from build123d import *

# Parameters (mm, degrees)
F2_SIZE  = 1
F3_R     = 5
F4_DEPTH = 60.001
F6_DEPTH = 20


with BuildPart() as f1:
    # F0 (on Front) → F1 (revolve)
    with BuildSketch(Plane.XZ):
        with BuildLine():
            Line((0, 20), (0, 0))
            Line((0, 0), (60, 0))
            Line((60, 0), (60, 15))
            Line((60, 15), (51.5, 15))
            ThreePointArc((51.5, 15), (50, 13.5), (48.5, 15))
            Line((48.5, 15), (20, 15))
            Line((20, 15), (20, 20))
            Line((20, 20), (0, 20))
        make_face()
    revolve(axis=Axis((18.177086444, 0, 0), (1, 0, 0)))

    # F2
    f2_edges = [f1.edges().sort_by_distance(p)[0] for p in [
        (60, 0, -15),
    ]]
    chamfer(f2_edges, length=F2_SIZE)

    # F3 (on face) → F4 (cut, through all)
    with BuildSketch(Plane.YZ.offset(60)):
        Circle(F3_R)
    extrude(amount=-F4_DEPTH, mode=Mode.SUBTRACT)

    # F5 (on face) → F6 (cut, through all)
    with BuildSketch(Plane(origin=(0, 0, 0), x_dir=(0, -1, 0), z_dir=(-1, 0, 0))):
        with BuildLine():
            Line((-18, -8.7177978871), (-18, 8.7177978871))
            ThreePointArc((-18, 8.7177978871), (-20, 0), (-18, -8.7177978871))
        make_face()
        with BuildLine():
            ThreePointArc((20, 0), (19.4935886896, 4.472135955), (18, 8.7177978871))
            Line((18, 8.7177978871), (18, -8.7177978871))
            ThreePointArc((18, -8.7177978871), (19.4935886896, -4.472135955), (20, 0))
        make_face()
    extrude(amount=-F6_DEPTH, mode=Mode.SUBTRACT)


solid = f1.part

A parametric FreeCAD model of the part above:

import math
import FreeCAD as App
import Part
import Sketcher
from FreeCAD import Vector
Q = App.Units.Quantity


def edges_at(feature, points):
    """Names of the edges that pass closest to the given points."""
    edges = feature.Shape.Edges
    near = lambda p: min(range(len(edges)), key=lambda i: edges[i].distToShape(Part.Vertex(*p))[0])
    return sorted({f"Edge{near(p) + 1}" for p in points})

doc = App.newDocument("Part")
body = doc.addObject("PartDesign::Body", "Body")

# Sketch on XZ plane
sketch1 = doc.addObject("Sketcher::SketchObject", "Sketch")
body.addObject(sketch1)
sketch1.AttachmentSupport = (doc.XZ_Plane, [""])
sketch1.MapMode = "FlatFace"
sketch1.addGeometry([
    Part.LineSegment(Vector(0, 20, 0), Vector(0, 0, 0)),  # 0
    Part.LineSegment(Vector(0, 0, 0), Vector(60, 0, 0)),  # 1
    Part.LineSegment(Vector(60, 0, 0), Vector(60, 15, 0)),  # 2
    Part.LineSegment(Vector(60, 15, 0), Vector(51.5, 15, 0)),  # 3
    Part.ArcOfCircle(Part.Circle(Vector(50, 15, 0), Vector(0, 0, 1), 1.5), math.radians(180), math.radians(360)),  # 4
    Part.LineSegment(Vector(48.5, 15, 0), Vector(20, 15, 0)),  # 5
    Part.LineSegment(Vector(20, 15, 0), Vector(20, 20, 0)),  # 6
    Part.LineSegment(Vector(20, 20, 0), Vector(0, 20, 0)),  # 7
], False)
sketch1.addConstraint([
    Sketcher.Constraint("Coincident", 0, 2, 1, 1),
    Sketcher.Constraint("Coincident", 1, 2, 2, 1),
    Sketcher.Constraint("Coincident", 2, 2, 3, 1),
    Sketcher.Constraint("Coincident", 3, 2, 4, 2),
    Sketcher.Constraint("Coincident", 4, 1, 5, 1),
    Sketcher.Constraint("Coincident", 5, 2, 6, 1),
    Sketcher.Constraint("Coincident", 6, 2, 7, 1),
    Sketcher.Constraint("Coincident", 7, 2, 0, 1),
    Sketcher.Constraint("Vertical", 0),
    Sketcher.Constraint("Horizontal", 1),
    Sketcher.Constraint("Vertical", 2),
    Sketcher.Constraint("Horizontal", 3),
    Sketcher.Constraint("Horizontal", 5),
    Sketcher.Constraint("Vertical", 6),
    Sketcher.Constraint("Horizontal", 7),
    Sketcher.Constraint("Coincident", 0, 2, -1, 1),
    Sketcher.Constraint("Horizontal", 4, 3, 2, 2),
    Sketcher.Constraint("Horizontal", 3, 2, 4, 1),
    Sketcher.Constraint("Equal", 7, 0),
    Sketcher.Constraint("Radius", 4, Q("1.5 mm")),
    Sketcher.Constraint("DistanceX", 1, 1, 1, 2, Q("60 mm")),
    Sketcher.Constraint("DistanceX", 7, 2, 7, 1, Q("20 mm")),
    Sketcher.Constraint("DistanceY", 2, 1, 2, 2, Q("15 mm")),
    Sketcher.Constraint("DistanceX", 3, 2, 3, 1, Q("8.5 mm")),
])
revolution = doc.addObject("PartDesign::Revolution", "Revolution")
body.addObject(revolution)
revolution.Profile = sketch1
revolution.ReferenceAxis = (sketch1, ["H_Axis"])
revolution.Angle = 360
doc.recompute()

chamfer = doc.addObject("PartDesign::Chamfer", "Chamfer")
body.addObject(chamfer)
chamfer.Base = (revolution, edges_at(revolution, [(60, 0, -15)]))
chamfer.Size = 1

# Sketch on YZ plane
sketch2 = doc.addObject("Sketcher::SketchObject", "Sketch001")
body.addObject(sketch2)
sketch2.AttachmentSupport = (doc.YZ_Plane, [""])
sketch2.MapMode = "FlatFace"
sketch2.AttachmentOffset = App.Placement(Vector(0, 0, 60), App.Rotation())
sketch2.addGeometry(Part.Circle(Vector(0, 0, 0), Vector(0, 0, 1), 5), False)
sketch2.addConstraint([
    Sketcher.Constraint("Coincident", 0, 3, -1, 1),
    Sketcher.Constraint("Diameter", 0, Q("10 mm")),
])
pocket1 = doc.addObject("PartDesign::Pocket", "Pocket")
body.addObject(pocket1)
pocket1.Profile = sketch2
pocket1.Type = "ThroughAll"

# Sketch on YZ plane
sketch3 = doc.addObject("Sketcher::SketchObject", "Sketch002")
body.addObject(sketch3)
sketch3.AttachmentSupport = (doc.YZ_Plane, [""])
sketch3.MapMode = "FlatFace"
sketch3.addGeometry([
    Part.LineSegment(Vector(18, -9, 0), Vector(18, 9, 0)),  # 0
    Part.ArcOfCircle(Part.Circle(Vector(0, 0, 0), Vector(0, 0, 1), 20), math.radians(-26), math.radians(26)),  # 1
    Part.ArcOfCircle(Part.Circle(Vector(0, 0, 0), Vector(0, 0, 1), 20), math.radians(154), math.radians(180)),  # 2
    Part.LineSegment(Vector(-18, 9, 0), Vector(-18, -9, 0)),  # 3
    Part.ArcOfCircle(Part.Circle(Vector(0, 0, 0), Vector(0, 0, 1), 20), math.radians(180), math.radians(206)),  # 4
], False)
sketch3.addConstraint([
    Sketcher.Constraint("Coincident", 0, 1, 1, 1),
    Sketcher.Constraint("Coincident", 1, 2, 0, 2),
    Sketcher.Constraint("Coincident", 2, 1, 3, 1),
    Sketcher.Constraint("Coincident", 3, 2, 4, 2),
    Sketcher.Constraint("Tangent", 4, 1, 2, 2),
    Sketcher.Constraint("Vertical", 0),
    Sketcher.Constraint("Vertical", 3),
    Sketcher.Constraint("Coincident", 1, 3, -1, 1),
    Sketcher.Constraint("Coincident", 2, 3, -1, 1),
    Sketcher.Constraint("Equal", 1, 2),
    Sketcher.Constraint("Equal", 2, 4),
    Sketcher.Constraint("PointOnObject", 4, 1, -1),
    Sketcher.Constraint("Horizontal", 1, 2, 2, 1),
    Sketcher.Constraint("Radius", 1, Q("20 mm")),
    Sketcher.Constraint("DistanceX", -1, 1, 0, 1, Q("18 mm")),
])
pocket2 = doc.addObject("PartDesign::Pocket", "Pocket001")
body.addObject(pocket2)
pocket2.Profile = sketch3
pocket2.Type = "ThroughAll"
pocket2.Reversed = True

doc.recompute()
